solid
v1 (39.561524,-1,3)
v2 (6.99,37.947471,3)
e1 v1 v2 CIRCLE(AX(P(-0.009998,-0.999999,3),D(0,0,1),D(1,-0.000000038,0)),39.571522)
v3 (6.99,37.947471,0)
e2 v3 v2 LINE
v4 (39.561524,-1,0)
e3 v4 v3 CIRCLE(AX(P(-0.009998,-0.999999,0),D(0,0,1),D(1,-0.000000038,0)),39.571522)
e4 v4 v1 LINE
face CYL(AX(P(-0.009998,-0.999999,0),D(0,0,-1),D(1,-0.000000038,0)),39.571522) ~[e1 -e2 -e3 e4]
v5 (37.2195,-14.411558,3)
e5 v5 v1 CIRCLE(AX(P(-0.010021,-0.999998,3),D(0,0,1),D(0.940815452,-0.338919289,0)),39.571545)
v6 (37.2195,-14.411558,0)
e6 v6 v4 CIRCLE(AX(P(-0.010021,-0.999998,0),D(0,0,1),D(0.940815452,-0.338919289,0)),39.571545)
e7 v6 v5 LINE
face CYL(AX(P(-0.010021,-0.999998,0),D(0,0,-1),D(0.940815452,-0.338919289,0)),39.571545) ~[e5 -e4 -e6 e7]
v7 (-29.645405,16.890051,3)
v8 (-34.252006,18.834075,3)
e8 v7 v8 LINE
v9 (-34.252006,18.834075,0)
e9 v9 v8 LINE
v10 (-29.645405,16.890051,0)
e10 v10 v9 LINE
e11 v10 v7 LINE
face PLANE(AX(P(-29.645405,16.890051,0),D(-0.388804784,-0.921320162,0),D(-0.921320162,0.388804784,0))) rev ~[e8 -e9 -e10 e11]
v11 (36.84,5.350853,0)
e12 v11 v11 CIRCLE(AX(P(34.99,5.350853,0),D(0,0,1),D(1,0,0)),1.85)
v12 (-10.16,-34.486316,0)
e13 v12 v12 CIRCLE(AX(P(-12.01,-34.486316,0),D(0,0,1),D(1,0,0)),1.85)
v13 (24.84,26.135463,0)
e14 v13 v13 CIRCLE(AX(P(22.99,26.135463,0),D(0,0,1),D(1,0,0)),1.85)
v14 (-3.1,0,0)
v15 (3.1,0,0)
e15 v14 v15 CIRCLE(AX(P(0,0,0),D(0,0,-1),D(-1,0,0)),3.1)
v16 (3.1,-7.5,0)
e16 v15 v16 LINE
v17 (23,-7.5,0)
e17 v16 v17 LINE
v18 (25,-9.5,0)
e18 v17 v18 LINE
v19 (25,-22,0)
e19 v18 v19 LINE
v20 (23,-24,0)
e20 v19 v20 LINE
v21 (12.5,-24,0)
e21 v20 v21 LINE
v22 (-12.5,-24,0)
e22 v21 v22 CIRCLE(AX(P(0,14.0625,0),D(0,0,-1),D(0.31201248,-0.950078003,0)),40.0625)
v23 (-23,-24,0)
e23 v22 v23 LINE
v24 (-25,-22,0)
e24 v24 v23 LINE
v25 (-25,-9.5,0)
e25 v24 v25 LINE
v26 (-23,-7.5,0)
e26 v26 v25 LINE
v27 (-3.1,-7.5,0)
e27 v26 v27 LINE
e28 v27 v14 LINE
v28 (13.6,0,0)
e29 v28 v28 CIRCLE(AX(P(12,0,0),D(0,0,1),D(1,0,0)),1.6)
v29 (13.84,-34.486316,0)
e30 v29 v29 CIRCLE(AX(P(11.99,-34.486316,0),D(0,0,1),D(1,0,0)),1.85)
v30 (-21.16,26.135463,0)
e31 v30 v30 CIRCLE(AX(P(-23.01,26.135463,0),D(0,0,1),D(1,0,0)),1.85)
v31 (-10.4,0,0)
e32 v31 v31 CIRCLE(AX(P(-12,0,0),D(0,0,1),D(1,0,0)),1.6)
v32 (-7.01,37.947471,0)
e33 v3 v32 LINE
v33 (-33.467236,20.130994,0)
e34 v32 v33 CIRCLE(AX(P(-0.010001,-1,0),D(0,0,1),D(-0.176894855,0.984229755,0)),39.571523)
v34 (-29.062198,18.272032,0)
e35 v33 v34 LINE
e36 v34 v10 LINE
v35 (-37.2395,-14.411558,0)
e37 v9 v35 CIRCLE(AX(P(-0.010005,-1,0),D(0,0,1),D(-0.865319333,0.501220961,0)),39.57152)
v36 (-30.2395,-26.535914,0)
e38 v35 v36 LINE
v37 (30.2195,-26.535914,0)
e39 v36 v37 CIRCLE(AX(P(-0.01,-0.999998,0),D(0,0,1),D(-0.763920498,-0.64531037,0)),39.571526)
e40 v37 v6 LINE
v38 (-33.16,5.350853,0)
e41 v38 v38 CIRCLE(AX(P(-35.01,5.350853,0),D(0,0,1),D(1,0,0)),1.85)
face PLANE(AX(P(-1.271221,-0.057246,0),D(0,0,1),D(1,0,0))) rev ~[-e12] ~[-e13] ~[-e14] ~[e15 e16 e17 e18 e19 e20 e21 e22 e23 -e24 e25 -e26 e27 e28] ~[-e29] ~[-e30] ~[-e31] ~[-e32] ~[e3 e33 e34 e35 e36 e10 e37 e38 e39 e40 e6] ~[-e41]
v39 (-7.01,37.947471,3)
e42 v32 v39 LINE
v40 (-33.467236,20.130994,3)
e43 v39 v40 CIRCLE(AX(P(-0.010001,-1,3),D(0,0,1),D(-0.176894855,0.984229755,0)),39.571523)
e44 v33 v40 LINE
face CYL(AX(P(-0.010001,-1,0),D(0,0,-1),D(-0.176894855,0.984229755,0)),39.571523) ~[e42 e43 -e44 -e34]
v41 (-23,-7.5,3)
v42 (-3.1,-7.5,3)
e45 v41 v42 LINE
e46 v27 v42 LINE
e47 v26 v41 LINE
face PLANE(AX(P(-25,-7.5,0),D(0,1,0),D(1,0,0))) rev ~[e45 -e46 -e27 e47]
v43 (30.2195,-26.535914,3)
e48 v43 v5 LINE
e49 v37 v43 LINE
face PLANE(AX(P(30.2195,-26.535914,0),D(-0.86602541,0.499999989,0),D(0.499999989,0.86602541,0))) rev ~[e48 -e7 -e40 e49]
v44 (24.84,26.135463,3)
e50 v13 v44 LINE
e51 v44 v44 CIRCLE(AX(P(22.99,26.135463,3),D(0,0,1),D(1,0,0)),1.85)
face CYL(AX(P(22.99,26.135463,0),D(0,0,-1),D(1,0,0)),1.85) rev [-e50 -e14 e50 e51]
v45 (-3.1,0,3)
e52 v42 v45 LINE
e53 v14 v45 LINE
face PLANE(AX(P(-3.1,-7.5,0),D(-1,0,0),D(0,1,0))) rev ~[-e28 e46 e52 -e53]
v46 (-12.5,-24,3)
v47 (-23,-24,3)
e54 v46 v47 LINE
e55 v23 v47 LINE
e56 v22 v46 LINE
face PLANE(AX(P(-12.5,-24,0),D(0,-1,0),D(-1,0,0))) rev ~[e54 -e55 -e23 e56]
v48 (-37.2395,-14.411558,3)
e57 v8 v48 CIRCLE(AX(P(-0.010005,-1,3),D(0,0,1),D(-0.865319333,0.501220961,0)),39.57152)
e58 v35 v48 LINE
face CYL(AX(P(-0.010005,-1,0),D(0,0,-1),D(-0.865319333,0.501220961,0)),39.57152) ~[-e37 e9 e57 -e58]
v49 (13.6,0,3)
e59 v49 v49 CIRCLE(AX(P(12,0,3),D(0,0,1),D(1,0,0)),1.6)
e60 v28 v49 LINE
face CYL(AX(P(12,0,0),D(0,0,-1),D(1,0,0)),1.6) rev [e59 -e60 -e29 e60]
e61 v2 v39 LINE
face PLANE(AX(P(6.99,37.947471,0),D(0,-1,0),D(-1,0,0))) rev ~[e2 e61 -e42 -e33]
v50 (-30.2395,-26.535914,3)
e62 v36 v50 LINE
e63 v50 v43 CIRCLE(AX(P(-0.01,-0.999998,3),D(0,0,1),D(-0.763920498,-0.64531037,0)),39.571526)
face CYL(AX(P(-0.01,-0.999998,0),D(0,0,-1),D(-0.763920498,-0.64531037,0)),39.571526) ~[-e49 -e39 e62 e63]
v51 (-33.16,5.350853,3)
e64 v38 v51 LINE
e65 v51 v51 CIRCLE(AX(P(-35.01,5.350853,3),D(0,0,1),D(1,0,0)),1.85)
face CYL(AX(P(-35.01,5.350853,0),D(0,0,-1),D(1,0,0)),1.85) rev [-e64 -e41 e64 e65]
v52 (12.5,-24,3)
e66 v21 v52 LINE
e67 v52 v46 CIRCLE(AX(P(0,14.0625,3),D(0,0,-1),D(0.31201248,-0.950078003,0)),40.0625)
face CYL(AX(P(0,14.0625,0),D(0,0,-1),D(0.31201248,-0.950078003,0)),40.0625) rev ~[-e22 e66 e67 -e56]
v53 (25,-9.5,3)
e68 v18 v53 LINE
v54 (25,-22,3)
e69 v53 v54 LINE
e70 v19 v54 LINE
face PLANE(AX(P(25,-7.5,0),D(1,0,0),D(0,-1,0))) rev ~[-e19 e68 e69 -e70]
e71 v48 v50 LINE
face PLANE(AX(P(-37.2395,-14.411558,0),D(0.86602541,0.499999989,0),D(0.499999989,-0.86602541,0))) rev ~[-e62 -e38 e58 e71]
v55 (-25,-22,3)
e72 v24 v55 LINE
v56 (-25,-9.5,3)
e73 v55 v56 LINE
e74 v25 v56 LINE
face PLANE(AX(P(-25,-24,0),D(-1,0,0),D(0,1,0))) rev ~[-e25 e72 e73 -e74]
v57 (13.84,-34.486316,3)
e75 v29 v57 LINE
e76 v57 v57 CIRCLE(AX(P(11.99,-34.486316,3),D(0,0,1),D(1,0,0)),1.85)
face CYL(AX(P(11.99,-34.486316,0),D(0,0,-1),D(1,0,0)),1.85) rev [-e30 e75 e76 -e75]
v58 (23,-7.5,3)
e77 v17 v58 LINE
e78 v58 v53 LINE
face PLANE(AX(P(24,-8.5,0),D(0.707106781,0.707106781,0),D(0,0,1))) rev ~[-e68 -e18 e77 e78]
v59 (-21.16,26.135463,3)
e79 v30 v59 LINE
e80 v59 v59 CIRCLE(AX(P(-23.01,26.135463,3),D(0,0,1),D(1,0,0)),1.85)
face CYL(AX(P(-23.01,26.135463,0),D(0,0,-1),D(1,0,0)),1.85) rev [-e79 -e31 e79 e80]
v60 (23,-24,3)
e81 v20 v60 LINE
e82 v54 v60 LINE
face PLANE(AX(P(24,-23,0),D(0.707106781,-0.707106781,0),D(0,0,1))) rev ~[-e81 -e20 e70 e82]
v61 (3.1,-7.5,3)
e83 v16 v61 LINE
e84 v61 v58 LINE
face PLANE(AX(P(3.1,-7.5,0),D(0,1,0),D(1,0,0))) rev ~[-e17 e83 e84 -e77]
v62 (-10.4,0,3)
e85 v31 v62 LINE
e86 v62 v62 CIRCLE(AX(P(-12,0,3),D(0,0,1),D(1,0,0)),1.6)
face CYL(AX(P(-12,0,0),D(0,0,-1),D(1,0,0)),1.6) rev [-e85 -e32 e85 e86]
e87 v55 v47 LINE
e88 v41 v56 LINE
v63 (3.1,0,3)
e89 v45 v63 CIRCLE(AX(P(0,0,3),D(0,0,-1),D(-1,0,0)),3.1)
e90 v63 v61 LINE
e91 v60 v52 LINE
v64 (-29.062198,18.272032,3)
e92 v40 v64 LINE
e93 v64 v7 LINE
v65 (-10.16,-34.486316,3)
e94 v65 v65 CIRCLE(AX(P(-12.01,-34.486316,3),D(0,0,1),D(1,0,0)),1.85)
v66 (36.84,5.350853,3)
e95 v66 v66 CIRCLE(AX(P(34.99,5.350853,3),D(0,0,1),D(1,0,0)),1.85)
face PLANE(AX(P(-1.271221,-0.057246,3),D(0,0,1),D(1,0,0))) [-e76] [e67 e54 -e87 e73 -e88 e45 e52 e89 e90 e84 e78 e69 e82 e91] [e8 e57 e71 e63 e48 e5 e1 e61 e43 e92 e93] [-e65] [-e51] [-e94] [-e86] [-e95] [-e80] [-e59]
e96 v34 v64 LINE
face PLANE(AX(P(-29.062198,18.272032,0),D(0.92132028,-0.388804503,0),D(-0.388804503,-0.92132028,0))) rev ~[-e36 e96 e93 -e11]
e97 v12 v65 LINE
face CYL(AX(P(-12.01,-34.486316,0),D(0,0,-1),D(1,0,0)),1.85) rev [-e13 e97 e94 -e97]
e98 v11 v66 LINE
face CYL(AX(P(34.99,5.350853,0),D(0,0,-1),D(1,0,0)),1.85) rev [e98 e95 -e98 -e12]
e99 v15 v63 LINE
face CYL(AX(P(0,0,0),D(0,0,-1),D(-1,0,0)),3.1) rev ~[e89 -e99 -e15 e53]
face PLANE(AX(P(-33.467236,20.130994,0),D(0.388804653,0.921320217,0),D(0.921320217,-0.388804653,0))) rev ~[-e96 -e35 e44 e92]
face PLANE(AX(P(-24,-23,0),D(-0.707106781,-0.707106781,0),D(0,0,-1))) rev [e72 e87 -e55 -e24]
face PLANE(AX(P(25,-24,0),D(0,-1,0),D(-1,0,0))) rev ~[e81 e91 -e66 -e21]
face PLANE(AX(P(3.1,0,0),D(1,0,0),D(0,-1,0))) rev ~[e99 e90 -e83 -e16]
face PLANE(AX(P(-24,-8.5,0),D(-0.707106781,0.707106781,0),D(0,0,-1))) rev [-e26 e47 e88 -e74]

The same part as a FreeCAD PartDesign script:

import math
import FreeCAD as App
import Part
import Sketcher
from FreeCAD import Vector


def edges_at(feature, points):
    """Names of the edges that pass closest to the given points."""
    edges = feature.Shape.Edges
    near = lambda p: min(range(len(edges)), key=lambda i: edges[i].distToShape(Part.Vertex(*p))[0])
    return sorted({f"Edge{near(p) + 1}" for p in points})

doc = App.newDocument("Part")
body = doc.addObject("PartDesign::Body", "Body")

sketch1 = doc.addObject("Sketcher::SketchObject", "Sketch")
body.addObject(sketch1)
sketch1.AttachmentSupport = (doc.XY_Plane, [""])
sketch1.MapMode = "FlatFace"
sketch1.addGeometry([
    Part.LineSegment(Vector(-37.2395, -14.411558, 0), Vector(-30.2395, -26.535914, 0)),
    Part.ArcOfCircle(Part.Circle(Vector(-0.01, -0.999998, 0), Vector(0, 0, 1), 39.571526), math.radians(-139.81105), math.radians(-40.18895)),
    Part.LineSegment(Vector(30.2195, -26.535914, 0), Vector(37.2195, -14.411558, 0)),
    Part.ArcOfCircle(Part.Circle(Vector(-0.010021, -0.999998, 0), Vector(0, 0, 1), 39.571545), math.radians(-19.811045), math.radians(-0.000003)),
    Part.ArcOfCircle(Part.Circle(Vector(-0.009998, -0.999999, 0), Vector(0, 0, 1), 39.571522), math.radians(-0.000002), math.radians(79.811055)),
    Part.LineSegment(Vector(6.99, 37.947471, 0), Vector(-7.01, 37.947471, 0)),
    Part.ArcOfCircle(Part.Circle(Vector(-0.010001, -1, 0), Vector(0, 0, 1), 39.571523), math.radians(100.188946), math.radians(147.724223)),
    Part.LineSegment(Vector(-33.467236, 20.130994, 0), Vector(-29.062198, 18.272032, 0)),
    Part.LineSegment(Vector(-29.062198, 18.272032, 0), Vector(-29.645405, 16.890051, 0)),
    Part.LineSegment(Vector(-29.645405, 16.890051, 0), Vector(-34.252006, 18.834075, 0)),
    Part.ArcOfCircle(Part.Circle(Vector(-0.010005, -1, 0), Vector(0, 0, 1), 39.57152), math.radians(149.919189), math.radians(199.811054)),
    Part.Circle(Vector(-12.01, -34.486316, 0), Vector(0, 0, 1), 1.85),
    Part.Circle(Vector(11.99, -34.486316, 0), Vector(0, 0, 1), 1.85),
    Part.LineSegment(Vector(3.1, 0, 0), Vector(3.1, -7.5, 0)),
    Part.LineSegment(Vector(3.1, -7.5, 0), Vector(25, -7.5, 0)),
    Part.LineSegment(Vector(25, -7.5, 0), Vector(25, -24, 0)),
    Part.LineSegment(Vector(25, -24, 0), Vector(12.5, -24, 0)),
    Part.ArcOfCircle(Part.Circle(Vector(0, 14.0625, 0), Vector(0, 0, 1), 40.0625), math.radians(-108.180554), math.radians(-71.819446)),
    Part.LineSegment(Vector(-12.5, -24, 0), Vector(-25, -24, 0)),
    Part.LineSegment(Vector(-25, -24, 0), Vector(-25, -7.5, 0)),
    Part.LineSegment(Vector(-25, -7.5, 0), Vector(-3.1, -7.5, 0)),
    Part.LineSegment(Vector(-3.1, -7.5, 0), Vector(-3.1, 0, 0)),
    Part.ArcOfCircle(Part.Circle(Vector(0, 0, 0), Vector(0, 0, 1), 3.1), math.radians(0), math.radians(180)),
    Part.Circle(Vector(-35.01, 5.350853, 0), Vector(0, 0, 1), 1.85),
    Part.Circle(Vector(-12, 0, 0), Vector(0, 0, 1), 1.6),
    Part.Circle(Vector(-23.01, 26.135463, 0), Vector(0, 0, 1), 1.85),
    Part.Circle(Vector(12, 0, 0), Vector(0, 0, 1), 1.6),
    Part.Circle(Vector(34.99, 5.350853, 0), Vector(0, 0, 1), 1.85),
    Part.Circle(Vector(22.99, 26.135463, 0), Vector(0, 0, 1), 1.85),
], False)
sketch1.addConstraint([
    Sketcher.Constraint("Coincident", 0, 2, 1, 1),
    Sketcher.Constraint("Coincident", 1, 2, 2, 1),
    Sketcher.Constraint("Coincident", 2, 2, 3, 1),
    Sketcher.Constraint("Coincident", 3, 2, 4, 1),
    Sketcher.Constraint("Coincident", 4, 2, 5, 1),
    Sketcher.Constraint("Coincident", 5, 2, 6, 1),
    Sketcher.Constraint("Coincident", 6, 2, 7, 1),
    Sketcher.Constraint("Coincident", 7, 2, 8, 1),
    Sketcher.Constraint("Coincident", 8, 2, 9, 1),
    Sketcher.Constraint("Coincident", 9, 2, 10, 1),
    Sketcher.Constraint("Coincident", 10, 2, 0, 1),
    Sketcher.Constraint("Coincident", 13, 2, 14, 1),
    Sketcher.Constraint("Coincident", 14, 2, 15, 1),
    Sketcher.Constraint("Coincident", 15, 2, 16, 1),
    Sketcher.Constraint("Coincident", 16, 2, 17, 2),
    Sketcher.Constraint("Coincident", 17, 1, 18, 1),
    Sketcher.Constraint("Coincident", 18, 2, 19, 1),
    Sketcher.Constraint("Coincident", 19, 2, 20, 1),
    Sketcher.Constraint("Coincident", 20, 2, 21, 1),
    Sketcher.Constraint("Coincident", 21, 2, 22, 2),
    Sketcher.Constraint("Coincident", 22, 1, 13, 1),
    Sketcher.Constraint("Horizontal", 5),
    Sketcher.Constraint("Vertical", 13),
    Sketcher.Constraint("Horizontal", 14),
    Sketcher.Constraint("Vertical", 15),
    Sketcher.Constraint("Horizontal", 16),
    Sketcher.Constraint("Horizontal", 18),
    Sketcher.Constraint("Vertical", 19),
    Sketcher.Constraint("Horizontal", 20),
    Sketcher.Constraint("Vertical", 21),
    Sketcher.Constraint("Coincident", 22, 3, -1, 1),
    Sketcher.Constraint("Coincident", 4, 3, 1, 3),
    Sketcher.Constraint("Coincident", 6, 3, 1, 3),
    Sketcher.Constraint("Coincident", 10, 3, 1, 3),
    Sketcher.Constraint("PointOnObject", 17, 3, -2),
    Sketcher.Constraint("PointOnObject", 24, 3, -1),
    Sketcher.Constraint("PointOnObject", 26, 3, -1),
    Sketcher.Constraint("PointOnObject", 21, 2, -1),
    Sketcher.Constraint("PointOnObject", 22, 1, -1),
    Sketcher.Constraint("Diameter", 11, 3.7),
    Sketcher.Constraint("Diameter", 12, 3.7),
    Sketcher.Constraint("Diameter", 23, 3.7),
    Sketcher.Constraint("Diameter", 24, 3.2),
    Sketcher.Constraint("Diameter", 25, 3.7),
    Sketcher.Constraint("Diameter", 26, 3.2),
    Sketcher.Constraint("Diameter", 27, 3.7),
    Sketcher.Constraint("Diameter", 28, 3.7),
    Sketcher.Constraint("Radius", 22, 3.1),
    Sketcher.Constraint("DistanceX", 5, 2, 5, 1, 14.0),
    Sketcher.Constraint("Distance", 0, 14.0),
    Sketcher.Constraint("Distance", 2, 14.0),
    Sketcher.Constraint("Distance", 9, 5.0),
    Sketcher.Constraint("DistanceX", 14, 1, 14, 2, 21.9),
    Sketcher.Constraint("DistanceX", 16, 2, 16, 1, 12.5),
    Sketcher.Constraint("DistanceX", 18, 2, 18, 1, 12.5),
    Sketcher.Constraint("DistanceX", 20, 1, 20, 2, 21.9),
    Sketcher.Constraint("DistanceY", 13, 2, 13, 1, 7.5),
    Sketcher.Constraint("DistanceY", 15, 2, 15, 1, 16.5),
    Sketcher.Constraint("DistanceY", 19, 1, 19, 2, 16.5),
    Sketcher.Constraint("DistanceY", 3, 3, -1, 1, 0.999998),
    Sketcher.Constraint("DistanceY", 4, 3, -1, 1, 0.999999),
    Sketcher.Constraint("DistanceX", 24, 3, -1, 1, 12.0),
    Sketcher.Constraint("DistanceX", -1, 1, 26, 3, 12.0),
    Sketcher.Constraint("DistanceY", 3, 2, -1, 1, 1.0),
    Sketcher.Constraint("DistanceX", 11, 3, 6, 3, 11.999999),
    Sketcher.Constraint("DistanceX", 11, 3, 12, 3, 24.0),
    Sketcher.Constraint("DistanceX", 23, 3, 6, 3, 34.999999),
    Sketcher.Constraint("DistanceX", 23, 3, 25, 3, 12.0),
    Sketcher.Constraint("DistanceX", 4, 3, 27, 3, 34.999998),
    Sketcher.Constraint("DistanceX", 28, 3, 27, 3, 12.0),
    Sketcher.Constraint("DistanceX", 1, 2, 2, 2, 7.0),
    Sketcher.Constraint("DistanceX", 4, 2, 28, 3, 16.0),
    Sketcher.Constraint("DistanceX", 10, 2, 0, 2, 7.0),
    Sketcher.Constraint("Distance", 8, 1.500001),
    Sketcher.Constraint("Radius", 17, 40.0625),
    Sketcher.Constraint("DistanceX", 1, 3, -1, 1, 0.01),
    Sketcher.Constraint("Radius", 10, 39.57152),
    Sketcher.Constraint("Radius", 1, 39.571526),
    Sketcher.Constraint("Radius", 3, 39.571545),
    Sketcher.Constraint("Radius", 4, 39.571522),
    Sketcher.Constraint("DistanceX", 23, 3, 7, 2, 5.947802),
    Sketcher.Constraint("DistanceX", 9, 2, 8, 2, 4.606601),
    Sketcher.Constraint("DistanceY", -1, 1, 7, 2, 18.272032),
    Sketcher.Constraint("DistanceY", 11, 3, 1, 3, 33.486318),
    Sketcher.Constraint("DistanceY", 12, 3, 1, 3, 33.486318),
    Sketcher.Constraint("DistanceY", 3, 3, 23, 3, 6.350851),
    Sketcher.Constraint("DistanceY", 23, 3, 25, 3, 20.78461),
    Sketcher.Constraint("DistanceY", 4, 3, 27, 3, 6.350852),
    Sketcher.Constraint("DistanceY", 27, 3, 28, 3, 20.78461),
    Sketcher.Constraint("DistanceY", 6, 2, 25, 3, 6.004469),
])
pad1 = doc.addObject("PartDesign::Pad", "Pad")
body.addObject(pad1)
pad1.Profile = sketch1
pad1.Length = 3
doc.recompute()

chamfer = doc.addObject("PartDesign::Chamfer", "Chamfer")
body.addObject(chamfer)
chamfer.Base = (pad1, edges_at(pad1, [
    (-25, -24, 1.5),
    (25, -24, 1.5),
    (-25, -7.5, 1.5),
    (25, -7.5, 1.5),
]))
chamfer.Size = 2

doc.recompute()
